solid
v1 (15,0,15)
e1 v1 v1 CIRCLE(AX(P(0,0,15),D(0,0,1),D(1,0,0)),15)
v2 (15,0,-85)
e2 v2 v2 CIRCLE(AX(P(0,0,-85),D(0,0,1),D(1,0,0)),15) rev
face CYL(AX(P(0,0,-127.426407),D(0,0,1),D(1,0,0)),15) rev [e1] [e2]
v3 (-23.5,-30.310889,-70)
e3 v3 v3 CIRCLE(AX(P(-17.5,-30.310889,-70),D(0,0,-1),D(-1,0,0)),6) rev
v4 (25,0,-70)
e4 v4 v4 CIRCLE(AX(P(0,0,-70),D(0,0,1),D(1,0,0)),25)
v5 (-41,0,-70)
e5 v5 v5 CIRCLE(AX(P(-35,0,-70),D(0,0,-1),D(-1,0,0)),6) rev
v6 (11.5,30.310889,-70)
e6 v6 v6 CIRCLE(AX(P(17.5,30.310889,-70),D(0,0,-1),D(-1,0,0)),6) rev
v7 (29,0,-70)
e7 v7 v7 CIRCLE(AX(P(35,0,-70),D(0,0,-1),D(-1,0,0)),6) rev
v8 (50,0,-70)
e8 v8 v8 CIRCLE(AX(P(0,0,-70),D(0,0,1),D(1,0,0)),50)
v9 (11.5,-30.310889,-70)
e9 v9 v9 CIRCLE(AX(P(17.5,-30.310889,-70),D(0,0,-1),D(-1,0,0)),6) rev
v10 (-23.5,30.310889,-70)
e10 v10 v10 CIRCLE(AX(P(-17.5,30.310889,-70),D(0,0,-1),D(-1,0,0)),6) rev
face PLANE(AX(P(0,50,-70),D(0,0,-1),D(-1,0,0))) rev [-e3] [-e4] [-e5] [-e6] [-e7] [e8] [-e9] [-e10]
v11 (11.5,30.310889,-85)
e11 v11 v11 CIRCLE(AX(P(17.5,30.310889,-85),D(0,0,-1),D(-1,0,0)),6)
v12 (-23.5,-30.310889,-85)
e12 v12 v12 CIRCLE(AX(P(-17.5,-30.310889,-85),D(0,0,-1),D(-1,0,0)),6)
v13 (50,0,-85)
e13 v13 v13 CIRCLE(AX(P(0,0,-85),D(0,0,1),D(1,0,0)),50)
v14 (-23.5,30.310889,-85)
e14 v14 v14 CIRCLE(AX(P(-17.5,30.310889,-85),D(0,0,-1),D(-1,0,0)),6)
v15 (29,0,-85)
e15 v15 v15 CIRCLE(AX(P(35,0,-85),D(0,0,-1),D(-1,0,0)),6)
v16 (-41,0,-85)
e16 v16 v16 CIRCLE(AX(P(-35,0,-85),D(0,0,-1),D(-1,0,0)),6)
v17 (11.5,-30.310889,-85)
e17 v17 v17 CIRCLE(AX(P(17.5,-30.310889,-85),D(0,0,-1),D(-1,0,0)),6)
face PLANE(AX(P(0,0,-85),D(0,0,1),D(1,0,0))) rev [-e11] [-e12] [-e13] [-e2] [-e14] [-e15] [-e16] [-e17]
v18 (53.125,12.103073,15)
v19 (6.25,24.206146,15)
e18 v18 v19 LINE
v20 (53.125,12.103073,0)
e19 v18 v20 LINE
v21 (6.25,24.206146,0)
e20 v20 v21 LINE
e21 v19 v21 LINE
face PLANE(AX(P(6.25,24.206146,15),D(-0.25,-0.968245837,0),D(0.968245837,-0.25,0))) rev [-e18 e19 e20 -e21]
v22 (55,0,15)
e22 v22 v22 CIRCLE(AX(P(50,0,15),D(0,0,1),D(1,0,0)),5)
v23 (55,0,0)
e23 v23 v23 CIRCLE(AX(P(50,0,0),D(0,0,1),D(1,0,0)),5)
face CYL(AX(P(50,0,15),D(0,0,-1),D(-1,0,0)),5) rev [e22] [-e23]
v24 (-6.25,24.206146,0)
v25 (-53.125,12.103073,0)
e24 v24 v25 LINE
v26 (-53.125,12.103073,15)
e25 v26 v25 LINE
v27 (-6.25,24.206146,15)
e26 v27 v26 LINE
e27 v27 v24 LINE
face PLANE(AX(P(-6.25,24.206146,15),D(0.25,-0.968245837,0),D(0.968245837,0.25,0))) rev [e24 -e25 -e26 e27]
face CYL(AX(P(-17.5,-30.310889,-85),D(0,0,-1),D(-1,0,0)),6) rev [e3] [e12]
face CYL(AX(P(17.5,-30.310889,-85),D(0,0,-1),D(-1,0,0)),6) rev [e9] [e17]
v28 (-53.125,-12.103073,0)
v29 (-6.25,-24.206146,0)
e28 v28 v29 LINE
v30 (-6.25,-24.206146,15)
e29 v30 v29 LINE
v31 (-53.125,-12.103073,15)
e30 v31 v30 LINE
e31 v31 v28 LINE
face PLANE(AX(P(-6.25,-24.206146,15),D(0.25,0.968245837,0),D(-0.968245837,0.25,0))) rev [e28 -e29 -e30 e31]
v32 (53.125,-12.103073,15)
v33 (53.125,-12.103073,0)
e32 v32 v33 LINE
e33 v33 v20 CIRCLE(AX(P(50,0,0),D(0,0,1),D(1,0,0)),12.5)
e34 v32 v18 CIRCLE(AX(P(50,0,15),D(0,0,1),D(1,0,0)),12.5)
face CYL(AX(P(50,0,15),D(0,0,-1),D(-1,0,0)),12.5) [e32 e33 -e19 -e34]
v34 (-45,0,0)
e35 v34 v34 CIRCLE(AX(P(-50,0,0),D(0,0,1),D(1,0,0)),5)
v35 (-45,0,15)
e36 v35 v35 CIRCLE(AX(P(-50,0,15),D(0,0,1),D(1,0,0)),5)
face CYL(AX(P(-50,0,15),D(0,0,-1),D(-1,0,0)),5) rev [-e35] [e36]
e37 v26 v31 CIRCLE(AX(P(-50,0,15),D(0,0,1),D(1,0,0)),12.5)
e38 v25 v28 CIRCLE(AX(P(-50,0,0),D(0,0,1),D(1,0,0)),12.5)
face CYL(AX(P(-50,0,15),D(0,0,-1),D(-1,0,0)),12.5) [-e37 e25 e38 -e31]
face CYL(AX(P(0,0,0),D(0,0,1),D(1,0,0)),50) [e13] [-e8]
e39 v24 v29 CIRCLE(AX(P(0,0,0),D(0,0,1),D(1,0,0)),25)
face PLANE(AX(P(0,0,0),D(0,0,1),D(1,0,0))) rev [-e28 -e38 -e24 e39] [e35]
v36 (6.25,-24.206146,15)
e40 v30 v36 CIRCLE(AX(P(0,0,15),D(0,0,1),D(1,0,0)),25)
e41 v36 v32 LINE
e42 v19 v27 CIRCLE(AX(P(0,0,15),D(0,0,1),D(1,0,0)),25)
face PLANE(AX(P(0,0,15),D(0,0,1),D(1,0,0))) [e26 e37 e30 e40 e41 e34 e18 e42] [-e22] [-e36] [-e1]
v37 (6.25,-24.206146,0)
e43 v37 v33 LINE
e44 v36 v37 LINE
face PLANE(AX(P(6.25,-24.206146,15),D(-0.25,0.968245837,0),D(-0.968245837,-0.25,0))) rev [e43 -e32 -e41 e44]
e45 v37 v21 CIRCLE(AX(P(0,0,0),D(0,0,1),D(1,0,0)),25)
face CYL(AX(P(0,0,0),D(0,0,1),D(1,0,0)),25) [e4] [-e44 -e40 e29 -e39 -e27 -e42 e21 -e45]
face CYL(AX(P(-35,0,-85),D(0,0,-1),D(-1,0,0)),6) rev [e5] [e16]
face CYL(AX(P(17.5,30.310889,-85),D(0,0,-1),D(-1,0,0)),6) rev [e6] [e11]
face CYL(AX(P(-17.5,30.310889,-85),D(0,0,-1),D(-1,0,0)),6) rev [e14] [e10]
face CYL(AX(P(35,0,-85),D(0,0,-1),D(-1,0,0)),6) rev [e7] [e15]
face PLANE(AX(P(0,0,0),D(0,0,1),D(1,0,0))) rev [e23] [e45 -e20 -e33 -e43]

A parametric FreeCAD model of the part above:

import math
import FreeCAD as App
import Part
import Sketcher

V = App.Vector
Q = App.Units.Quantity


def add_polygon(sketch, points):
    """Adds a closed chain of lines whose ends are joined by coincident constraints."""
    first, n = sketch.GeometryCount, len(points)
    for a, b in zip(points, points[1:] + points[:1]):
        sketch.addGeometry(Part.LineSegment(App.Vector(*a, 0), App.Vector(*b, 0)), False)
    for i in range(n):
        sketch.addConstraint(Sketcher.Constraint("Coincident", first + i, 2, first + (i + 1) % n, 1))

doc = App.newDocument("Part")
params = doc.addObject("Spreadsheet::Sheet", "Params")
for row, (alias, value) in enumerate([
    ("sketch1_width", "50 mm"),
    ("sketch1_height", "15 mm"),
    ("sketch1_height2", "70 mm"),
    ("revolution_angle", "360 deg"),
    ("sketch2_diameter", "10 mm"),
    ("sketch2_radius", "25 mm"),
    ("sketch2_radius2", "12.5 mm"),
    ("pad1_length", "15 mm"),
    ("sketch3_diameter", "30 mm"),
    ("pocket1_length", "100 mm"),
    ("sketch4_diameter", "12 mm"),
    ("sketch5_diameter", "12 mm"),
    ("sketch6_diameter", "12 mm"),
    ("sketch7_diameter", "12 mm"),
    ("sketch8_diameter", "12 mm"),
    ("sketch9_diameter", "12 mm"),
], start=1):
    params.set(f"A{row}", alias)
    params.set(f"B{row}", "=" + value)
    params.setAlias(f"B{row}", alias)

body = doc.addObject("PartDesign::Body", "Body")

# Sketch on YZ plane
sketch1 = body.newObject("Sketcher::SketchObject", "Sketch")
sketch1.AttachmentSupport = (doc.getObject("YZ_Plane"), [""])
sketch1.MapMode = "FlatFace"
add_polygon(sketch1, [(0, -85), (50, -85), (50, -70), (25, -70), (25, 0), (0, 0)])  # lines 0-5
sketch1.addConstraint(Sketcher.Constraint("Horizontal", 0))
sketch1.addConstraint(Sketcher.Constraint("Vertical", 1))
sketch1.addConstraint(Sketcher.Constraint("Horizontal", 2))
sketch1.addConstraint(Sketcher.Constraint("Vertical", 3))
sketch1.addConstraint(Sketcher.Constraint("Horizontal", 4))
sketch1.addConstraint(Sketcher.Constraint("Vertical", 5))
sketch1.addConstraint(Sketcher.Constraint("Coincident", 4, 2, -1, 1))
sketch1.addConstraint(Sketcher.Constraint("Equal", 2, 4))
sketch1.addConstraint(Sketcher.Constraint("DistanceX", 0, 1, 0, 2, Q("50 mm")))
sketch1.addConstraint(Sketcher.Constraint("DistanceY", 1, 1, 1, 2, Q("15 mm")))
sketch1.addConstraint(Sketcher.Constraint("DistanceY", 3, 1, 3, 2, Q("70 mm")))
sketch1.setExpression("Constraints[14]", "Params.sketch1_width")
sketch1.setExpression("Constraints[15]", "Params.sketch1_height")
sketch1.setExpression("Constraints[16]", "Params.sketch1_height2")
revolution = body.newObject("PartDesign::Revolution", "Revolution")
revolution.Profile = sketch1
revolution.ReferenceAxis = (sketch1, ["V_Axis"])
revolution.setExpression("Angle", "Params.revolution_angle")

# Sketch on XY plane
sketch2 = body.newObject("Sketcher::SketchObject", "Sketch001")
sketch2.AttachmentSupport = (doc.getObject("XY_Plane"), [""])
sketch2.MapMode = "FlatFace"
sketch2.AttachmentOffset = App.Placement(V(0, 0, 15), App.Rotation())
sketch2.addGeometry(Part.LineSegment(V(-6, 24, 0), V(-53, 12, 0)), False)
sketch2.addGeometry(Part.ArcOfCircle(Part.Circle(V(-50, 0, 0), V(0, 0, 1), 12), math.radians(104), math.radians(256)), False)
sketch2.addGeometry(Part.LineSegment(V(-53, -12, 0), V(-6, -24, 0)), False)
sketch2.addGeometry(Part.ArcOfCircle(Part.Circle(V(0, 0, 0), V(0, 0, 1), 25), math.radians(-104), math.radians(-76)), False)
sketch2.addGeometry(Part.LineSegment(V(6, -24, 0), V(53, -12, 0)), False)
sketch2.addGeometry(Part.ArcOfCircle(Part.Circle(V(50, 0, 0), V(0, 0, 1), 12), math.radians(-76), math.radians(76)), False)
sketch2.addGeometry(Part.LineSegment(V(53, 12, 0), V(6, 24, 0)), False)
sketch2.addGeometry(Part.ArcOfCircle(Part.Circle(V(0, 0, 0), V(0, 0, 1), 25), math.radians(76), math.radians(104)), False)
sketch2.addGeometry(Part.Circle(V(-50, 0, 0), V(0, 0, 1), 5), False)
sketch2.addGeometry(Part.Circle(V(50, 0, 0), V(0, 0, 1), 5), False)
sketch2.addConstraint(Sketcher.Constraint("Tangent", 0, 2, 1, 1))
sketch2.addConstraint(Sketcher.Constraint("Tangent", 1, 2, 2, 1))
sketch2.addConstraint(Sketcher.Constraint("Tangent", 2, 2, 3, 1))
sketch2.addConstraint(Sketcher.Constraint("Tangent", 3, 2, 4, 1))
sketch2.addConstraint(Sketcher.Constraint("Tangent", 4, 2, 5, 1))
sketch2.addConstraint(Sketcher.Constraint("Tangent", 5, 2, 6, 1))
sketch2.addConstraint(Sketcher.Constraint("Tangent", 6, 2, 7, 1))
sketch2.addConstraint(Sketcher.Constraint("Tangent", 7, 2, 0, 1))
sketch2.addConstraint(Sketcher.Constraint("Coincident", 3, 3, -1, 1))
sketch2.addConstraint(Sketcher.Constraint("Coincident", 7, 3, -1, 1))
sketch2.addConstraint(Sketcher.Constraint("Coincident", 8, 3, 1, 3))
sketch2.addConstraint(Sketcher.Constraint("Coincident", 9, 3, 5, 3))
sketch2.addConstraint(Sketcher.Constraint("Equal", 1, 5))
sketch2.addConstraint(Sketcher.Constraint("Equal", 3, 7))
sketch2.addConstraint(Sketcher.Constraint("Equal", 8, 9))
sketch2.addConstraint(Sketcher.Constraint("Symmetric", 1, 3, 5, 3, -1, 1))
sketch2.addConstraint(Sketcher.Constraint("PointOnObject", 1, 3, -1))
sketch2.addConstraint(Sketcher.Constraint("Diameter", 8, Q("10 mm")))
sketch2.addConstraint(Sketcher.Constraint("Radius", 3, Q("25 mm")))
sketch2.addConstraint(Sketcher.Constraint("Radius", 1, Q("12.5 mm")))
sketch2.addConstraint(Sketcher.Constraint("DistanceX", 1, 3, -1, 1, Q("50 mm")))
sketch2.setExpression("Constraints[17]", "Params.sketch2_diameter")
sketch2.setExpression("Constraints[18]", "Params.sketch2_radius")
sketch2.setExpression("Constraints[19]", "Params.sketch2_radius2")
pad1 = body.newObject("PartDesign::Pad", "Pad")
pad1.Profile = sketch2
pad1.setExpression("Length", "Params.pad1_length")
pad1.Reversed = True

# Sketch on XY plane
sketch3 = body.newObject("Sketcher::SketchObject", "Sketch002")
sketch3.AttachmentSupport = (doc.getObject("XY_Plane"), [""])
sketch3.MapMode = "FlatFace"
sketch3.AttachmentOffset = App.Placement(V(0, 0, 15), App.Rotation())
sketch3.addGeometry(Part.Circle(V(0, 0, 0), V(0, 0, 1), 15), False)
sketch3.addConstraint(Sketcher.Constraint("Coincident", 0, 3, -1, 1))
sketch3.addConstraint(Sketcher.Constraint("Diameter", 0, Q("30 mm")))
sketch3.setExpression("Constraints[1]", "Params.sketch3_diameter")
pocket1 = body.newObject("PartDesign::Pocket", "Pocket")
pocket1.Profile = sketch3
pocket1.setExpression("Length", "Params.pocket1_length")

# Sketch on XY plane
sketch4 = body.newObject("Sketcher::SketchObject", "Sketch003")
sketch4.AttachmentSupport = (doc.getObject("XY_Plane"), [""])
sketch4.MapMode = "FlatFace"
sketch4.AttachmentOffset = App.Placement(V(0, 0, -85), App.Rotation())
sketch4.addGeometry(Part.Circle(V(18, -30, 0), V(0, 0, 1), 6), False)
sketch4.addConstraint(Sketcher.Constraint("Diameter", 0, Q("12 mm")))
sketch4.addConstraint(Sketcher.Constraint("DistanceX", -1, 1, 0, 3, Q("17.5 mm")))
sketch4.addConstraint(Sketcher.Constraint("DistanceY", 0, 3, -1, 1, Q("30.310889 mm")))
sketch4.setExpression("Constraints[0]", "Params.sketch4_diameter")
pocket2 = body.newObject("PartDesign::Pocket", "Pocket001")
pocket2.Profile = sketch4
pocket2.Type = "UpToFirst"
pocket2.Reversed = True

# Sketch on XY plane
sketch5 = body.newObject("Sketcher::SketchObject", "Sketch004")
sketch5.AttachmentSupport = (doc.getObject("XY_Plane"), [""])
sketch5.MapMode = "FlatFace"
sketch5.AttachmentOffset = App.Placement(V(0, 0, -85), App.Rotation())
sketch5.addGeometry(Part.Circle(V(35, 0, 0), V(0, 0, 1), 6), False)
sketch5.addConstraint(Sketcher.Constraint("PointOnObject", 0, 3, -1))
sketch5.addConstraint(Sketcher.Constraint("Diameter", 0, Q("12 mm")))
sketch5.addConstraint(Sketcher.Constraint("DistanceX", -1, 1, 0, 3, Q("35 mm")))
sketch5.setExpression("Constraints[1]", "Params.sketch5_diameter")
pocket3 = body.newObject("PartDesign::Pocket", "Pocket002")
pocket3.Profile = sketch5
pocket3.Type = "UpToFirst"
pocket3.Reversed = True

# Sketch on XY plane
sketch6 = body.newObject("Sketcher::SketchObject", "Sketch005")
sketch6.AttachmentSupport = (doc.getObject("XY_Plane"), [""])
sketch6.MapMode = "FlatFace"
sketch6.AttachmentOffset = App.Placement(V(0, 0, -85), App.Rotation())
sketch6.addGeometry(Part.Circle(V(18, 30, 0), V(0, 0, 1), 6), False)
sketch6.addConstraint(Sketcher.Constraint("Diameter", 0, Q("12 mm")))
sketch6.addConstraint(Sketcher.Constraint("DistanceX", -1, 1, 0, 3, Q("17.5 mm")))
sketch6.addConstraint(Sketcher.Constraint("DistanceY", -1, 1, 0, 3, Q("30.310889 mm")))
sketch6.setExpression("Constraints[0]", "Params.sketch6_diameter")
pocket4 = body.newObject("PartDesign::Pocket", "Pocket003")
pocket4.Profile = sketch6
pocket4.Type = "UpToFirst"
pocket4.Reversed = True

# Sketch on XY plane
sketch7 = body.newObject("Sketcher::SketchObject", "Sketch006")
sketch7.AttachmentSupport = (doc.getObject("XY_Plane"), [""])
sketch7.MapMode = "FlatFace"
sketch7.AttachmentOffset = App.Placement(V(0, 0, -85), App.Rotation())
sketch7.addGeometry(Part.Circle(V(-18, 30, 0), V(0, 0, 1), 6), False)
sketch7.addConstraint(Sketcher.Constraint("Diameter", 0, Q("12 mm")))
sketch7.addConstraint(Sketcher.Constraint("DistanceX", 0, 3, -1, 1, Q("17.5 mm")))
sketch7.addConstraint(Sketcher.Constraint("DistanceY", -1, 1, 0, 3, Q("30.310889 mm")))
sketch7.setExpression("Constraints[0]", "Params.sketch7_diameter")
pocket5 = body.newObject("PartDesign::Pocket", "Pocket004")
pocket5.Profile = sketch7
pocket5.Type = "UpToFirst"
pocket5.Reversed = True

# Sketch on XY plane
sketch8 = body.newObject("Sketcher::SketchObject", "Sketch007")
sketch8.AttachmentSupport = (doc.getObject("XY_Plane"), [""])
sketch8.MapMode = "FlatFace"
sketch8.AttachmentOffset = App.Placement(V(0, 0, -85), App.Rotation())
sketch8.addGeometry(Part.Circle(V(-35, 0, 0), V(0, 0, 1), 6), False)
sketch8.addConstraint(Sketcher.Constraint("PointOnObject", 0, 3, -1))
sketch8.addConstraint(Sketcher.Constraint("Diameter", 0, Q("12 mm")))
sketch8.addConstraint(Sketcher.Constraint("DistanceX", 0, 3, -1, 1, Q("35 mm")))
sketch8.setExpression("Constraints[1]", "Params.sketch8_diameter")
pocket6 = body.newObject("PartDesign::Pocket", "Pocket005")
pocket6.Profile = sketch8
pocket6.Type = "UpToFirst"
pocket6.Reversed = True

# Sketch on XY plane
sketch9 = body.newObject("Sketcher::SketchObject", "Sketch008")
sketch9.AttachmentSupport = (doc.getObject("XY_Plane"), [""])
sketch9.MapMode = "FlatFace"
sketch9.AttachmentOffset = App.Placement(V(0, 0, -85), App.Rotation())
sketch9.addGeometry(Part.Circle(V(-18, -30, 0), V(0, 0, 1), 6), False)
sketch9.addConstraint(Sketcher.Constraint("Diameter", 0, Q("12 mm")))
sketch9.addConstraint(Sketcher.Constraint("DistanceX", 0, 3, -1, 1, Q("17.5 mm")))
sketch9.addConstraint(Sketcher.Constraint("DistanceY", 0, 3, -1, 1, Q("30.310889 mm")))
sketch9.setExpression("Constraints[0]", "Params.sketch9_diameter")
pocket7 = body.newObject("PartDesign::Pocket", "Pocket006")
pocket7.Profile = sketch9
pocket7.Type = "UpToFirst"
pocket7.Reversed = True

doc.recompute()
